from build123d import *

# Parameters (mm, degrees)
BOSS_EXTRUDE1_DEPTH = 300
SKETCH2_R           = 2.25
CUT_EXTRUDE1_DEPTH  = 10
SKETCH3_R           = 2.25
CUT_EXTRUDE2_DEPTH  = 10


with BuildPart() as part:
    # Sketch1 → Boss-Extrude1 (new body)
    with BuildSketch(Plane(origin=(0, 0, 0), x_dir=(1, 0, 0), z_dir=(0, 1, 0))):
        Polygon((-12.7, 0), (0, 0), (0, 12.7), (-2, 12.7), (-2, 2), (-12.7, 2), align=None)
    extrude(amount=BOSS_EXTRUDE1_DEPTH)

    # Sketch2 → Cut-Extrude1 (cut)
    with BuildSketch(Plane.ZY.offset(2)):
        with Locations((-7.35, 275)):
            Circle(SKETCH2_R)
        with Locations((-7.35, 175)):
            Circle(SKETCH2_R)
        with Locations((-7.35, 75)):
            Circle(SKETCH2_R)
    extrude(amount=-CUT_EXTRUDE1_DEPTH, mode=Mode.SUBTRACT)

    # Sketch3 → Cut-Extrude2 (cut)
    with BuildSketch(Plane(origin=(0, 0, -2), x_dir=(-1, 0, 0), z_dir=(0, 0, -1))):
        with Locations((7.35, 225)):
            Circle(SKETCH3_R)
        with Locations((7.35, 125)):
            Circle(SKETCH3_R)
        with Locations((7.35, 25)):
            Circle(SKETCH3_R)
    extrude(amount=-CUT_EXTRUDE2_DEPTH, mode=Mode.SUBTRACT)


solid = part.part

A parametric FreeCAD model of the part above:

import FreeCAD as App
import Part
import Sketcher
from FreeCAD import Vector
Q = App.Units.Quantity


def add_polygon(sketch, points):
    """Adds a closed chain of lines whose ends are joined by coincident constraints."""
    first, n = sketch.GeometryCount, len(points)
    for a, b in zip(points, points[1:] + points[:1]):
        sketch.addGeometry(Part.LineSegment(App.Vector(*a, 0), App.Vector(*b, 0)), False)
    for i in range(n):
        sketch.addConstraint(Sketcher.Constraint("Coincident", first + i, 2, first + (i + 1) % n, 1))

doc = App.newDocument("Part")
body = doc.addObject("PartDesign::Body", "Body")

# Sketch on XZ plane
sketch1 = body.newObject("Sketcher::SketchObject", "Sketch")
sketch1.AttachmentSupport = (doc.getObject("XZ_Plane"), [""])
sketch1.MapMode = "FlatFace"
add_polygon(sketch1, [(-12.7, 0), (0, 0), (0, -12.7), (-2, -12.7), (-2, -2), (-12.7, -2)])  # lines 0-5
sketch1.addConstraint([
    Sketcher.Constraint("Horizontal", 0),
    Sketcher.Constraint("Vertical", 1),
    Sketcher.Constraint("Horizontal", 2),
    Sketcher.Constraint("Vertical", 3),
    Sketcher.Constraint("Horizontal", 4),
    Sketcher.Constraint("Vertical", 5),
    Sketcher.Constraint("Coincident", 0, 2, -1, 1),
    Sketcher.Constraint("Equal", 0, 1),
    Sketcher.Constraint("Equal", 4, 3),
    Sketcher.Constraint("DistanceX", 2, 2, 2, 1, Q("2 mm")),
    Sketcher.Constraint("DistanceX", 0, 1, 0, 2, Q("12.7 mm")),
])
pad1 = body.newObject("PartDesign::Pad", "Pad")
pad1.Profile = sketch1
pad1.Length = 300
pad1.Reversed = True

# Sketch on YZ plane
sketch2 = body.newObject("Sketcher::SketchObject", "Sketch001")
sketch2.AttachmentSupport = (doc.getObject("YZ_Plane"), [""])
sketch2.MapMode = "FlatFace"
sketch2.AttachmentOffset = App.Placement(Vector(0, 0, -2), App.Rotation())
sketch2.addGeometry([
    Part.Circle(Vector(275, -7.3, 0), Vector(0, 0, 1), 2.2),
    Part.Circle(Vector(175, -7.3, 0), Vector(0, 0, 1), 2.2),
    Part.Circle(Vector(75, -7.3, 0), Vector(0, 0, 1), 2.2),
], False)
sketch2.addConstraint([
    Sketcher.Constraint("Equal", 0, 1),
    Sketcher.Constraint("Equal", 1, 2),
    Sketcher.Constraint("Horizontal", 0, 3, 1, 3),
    Sketcher.Constraint("Horizontal", 1, 3, 2, 3),
    Sketcher.Constraint("Diameter", 0, Q("4.5 mm")),
    Sketcher.Constraint("DistanceX", -1, 1, 0, 3, Q("275 mm")),
    Sketcher.Constraint("DistanceX", -1, 1, 1, 3, Q("175 mm")),
    Sketcher.Constraint("DistanceX", -1, 1, 2, 3, Q("75 mm")),
    Sketcher.Constraint("DistanceY", 0, 3, -1, 1, Q("7.35 mm")),
])
pocket1 = body.newObject("PartDesign::Pocket", "Pocket")
pocket1.Profile = sketch2
pocket1.Length = 10
pocket1.Reversed = True

# Sketch on XY plane
sketch3 = body.newObject("Sketcher::SketchObject", "Sketch002")
sketch3.AttachmentSupport = (doc.getObject("XY_Plane"), [""])
sketch3.MapMode = "FlatFace"
sketch3.AttachmentOffset = App.Placement(Vector(0, 0, -2), App.Rotation())
sketch3.addGeometry([
    Part.Circle(Vector(-7.3, 225, 0), Vector(0, 0, 1), 2.2),
    Part.Circle(Vector(-7.3, 125, 0), Vector(0, 0, 1), 2.2),
    Part.Circle(Vector(-7.3, 25, 0), Vector(0, 0, 1), 2.2),
], False)
sketch3.addConstraint([
    Sketcher.Constraint("Equal", 0, 1),
    Sketcher.Constraint("Equal", 1, 2),
    Sketcher.Constraint("Vertical", 0, 3, 1, 3),
    Sketcher.Constraint("Vertical", 1, 3, 2, 3),
    Sketcher.Constraint("Diameter", 0, Q("4.5 mm")),
    Sketcher.Constraint("DistanceY", -1, 1, 0, 3, Q("225 mm")),
    Sketcher.Constraint("DistanceY", -1, 1, 1, 3, Q("125 mm")),
    Sketcher.Constraint("DistanceY", -1, 1, 2, 3, Q("25 mm")),
    Sketcher.Constraint("DistanceX", 0, 3, -1, 1, Q("7.35 mm")),
])
pocket2 = body.newObject("PartDesign::Pocket", "Pocket001")
pocket2.Profile = sketch3
pocket2.Length = 10
pocket2.Reversed = True

doc.recompute()
